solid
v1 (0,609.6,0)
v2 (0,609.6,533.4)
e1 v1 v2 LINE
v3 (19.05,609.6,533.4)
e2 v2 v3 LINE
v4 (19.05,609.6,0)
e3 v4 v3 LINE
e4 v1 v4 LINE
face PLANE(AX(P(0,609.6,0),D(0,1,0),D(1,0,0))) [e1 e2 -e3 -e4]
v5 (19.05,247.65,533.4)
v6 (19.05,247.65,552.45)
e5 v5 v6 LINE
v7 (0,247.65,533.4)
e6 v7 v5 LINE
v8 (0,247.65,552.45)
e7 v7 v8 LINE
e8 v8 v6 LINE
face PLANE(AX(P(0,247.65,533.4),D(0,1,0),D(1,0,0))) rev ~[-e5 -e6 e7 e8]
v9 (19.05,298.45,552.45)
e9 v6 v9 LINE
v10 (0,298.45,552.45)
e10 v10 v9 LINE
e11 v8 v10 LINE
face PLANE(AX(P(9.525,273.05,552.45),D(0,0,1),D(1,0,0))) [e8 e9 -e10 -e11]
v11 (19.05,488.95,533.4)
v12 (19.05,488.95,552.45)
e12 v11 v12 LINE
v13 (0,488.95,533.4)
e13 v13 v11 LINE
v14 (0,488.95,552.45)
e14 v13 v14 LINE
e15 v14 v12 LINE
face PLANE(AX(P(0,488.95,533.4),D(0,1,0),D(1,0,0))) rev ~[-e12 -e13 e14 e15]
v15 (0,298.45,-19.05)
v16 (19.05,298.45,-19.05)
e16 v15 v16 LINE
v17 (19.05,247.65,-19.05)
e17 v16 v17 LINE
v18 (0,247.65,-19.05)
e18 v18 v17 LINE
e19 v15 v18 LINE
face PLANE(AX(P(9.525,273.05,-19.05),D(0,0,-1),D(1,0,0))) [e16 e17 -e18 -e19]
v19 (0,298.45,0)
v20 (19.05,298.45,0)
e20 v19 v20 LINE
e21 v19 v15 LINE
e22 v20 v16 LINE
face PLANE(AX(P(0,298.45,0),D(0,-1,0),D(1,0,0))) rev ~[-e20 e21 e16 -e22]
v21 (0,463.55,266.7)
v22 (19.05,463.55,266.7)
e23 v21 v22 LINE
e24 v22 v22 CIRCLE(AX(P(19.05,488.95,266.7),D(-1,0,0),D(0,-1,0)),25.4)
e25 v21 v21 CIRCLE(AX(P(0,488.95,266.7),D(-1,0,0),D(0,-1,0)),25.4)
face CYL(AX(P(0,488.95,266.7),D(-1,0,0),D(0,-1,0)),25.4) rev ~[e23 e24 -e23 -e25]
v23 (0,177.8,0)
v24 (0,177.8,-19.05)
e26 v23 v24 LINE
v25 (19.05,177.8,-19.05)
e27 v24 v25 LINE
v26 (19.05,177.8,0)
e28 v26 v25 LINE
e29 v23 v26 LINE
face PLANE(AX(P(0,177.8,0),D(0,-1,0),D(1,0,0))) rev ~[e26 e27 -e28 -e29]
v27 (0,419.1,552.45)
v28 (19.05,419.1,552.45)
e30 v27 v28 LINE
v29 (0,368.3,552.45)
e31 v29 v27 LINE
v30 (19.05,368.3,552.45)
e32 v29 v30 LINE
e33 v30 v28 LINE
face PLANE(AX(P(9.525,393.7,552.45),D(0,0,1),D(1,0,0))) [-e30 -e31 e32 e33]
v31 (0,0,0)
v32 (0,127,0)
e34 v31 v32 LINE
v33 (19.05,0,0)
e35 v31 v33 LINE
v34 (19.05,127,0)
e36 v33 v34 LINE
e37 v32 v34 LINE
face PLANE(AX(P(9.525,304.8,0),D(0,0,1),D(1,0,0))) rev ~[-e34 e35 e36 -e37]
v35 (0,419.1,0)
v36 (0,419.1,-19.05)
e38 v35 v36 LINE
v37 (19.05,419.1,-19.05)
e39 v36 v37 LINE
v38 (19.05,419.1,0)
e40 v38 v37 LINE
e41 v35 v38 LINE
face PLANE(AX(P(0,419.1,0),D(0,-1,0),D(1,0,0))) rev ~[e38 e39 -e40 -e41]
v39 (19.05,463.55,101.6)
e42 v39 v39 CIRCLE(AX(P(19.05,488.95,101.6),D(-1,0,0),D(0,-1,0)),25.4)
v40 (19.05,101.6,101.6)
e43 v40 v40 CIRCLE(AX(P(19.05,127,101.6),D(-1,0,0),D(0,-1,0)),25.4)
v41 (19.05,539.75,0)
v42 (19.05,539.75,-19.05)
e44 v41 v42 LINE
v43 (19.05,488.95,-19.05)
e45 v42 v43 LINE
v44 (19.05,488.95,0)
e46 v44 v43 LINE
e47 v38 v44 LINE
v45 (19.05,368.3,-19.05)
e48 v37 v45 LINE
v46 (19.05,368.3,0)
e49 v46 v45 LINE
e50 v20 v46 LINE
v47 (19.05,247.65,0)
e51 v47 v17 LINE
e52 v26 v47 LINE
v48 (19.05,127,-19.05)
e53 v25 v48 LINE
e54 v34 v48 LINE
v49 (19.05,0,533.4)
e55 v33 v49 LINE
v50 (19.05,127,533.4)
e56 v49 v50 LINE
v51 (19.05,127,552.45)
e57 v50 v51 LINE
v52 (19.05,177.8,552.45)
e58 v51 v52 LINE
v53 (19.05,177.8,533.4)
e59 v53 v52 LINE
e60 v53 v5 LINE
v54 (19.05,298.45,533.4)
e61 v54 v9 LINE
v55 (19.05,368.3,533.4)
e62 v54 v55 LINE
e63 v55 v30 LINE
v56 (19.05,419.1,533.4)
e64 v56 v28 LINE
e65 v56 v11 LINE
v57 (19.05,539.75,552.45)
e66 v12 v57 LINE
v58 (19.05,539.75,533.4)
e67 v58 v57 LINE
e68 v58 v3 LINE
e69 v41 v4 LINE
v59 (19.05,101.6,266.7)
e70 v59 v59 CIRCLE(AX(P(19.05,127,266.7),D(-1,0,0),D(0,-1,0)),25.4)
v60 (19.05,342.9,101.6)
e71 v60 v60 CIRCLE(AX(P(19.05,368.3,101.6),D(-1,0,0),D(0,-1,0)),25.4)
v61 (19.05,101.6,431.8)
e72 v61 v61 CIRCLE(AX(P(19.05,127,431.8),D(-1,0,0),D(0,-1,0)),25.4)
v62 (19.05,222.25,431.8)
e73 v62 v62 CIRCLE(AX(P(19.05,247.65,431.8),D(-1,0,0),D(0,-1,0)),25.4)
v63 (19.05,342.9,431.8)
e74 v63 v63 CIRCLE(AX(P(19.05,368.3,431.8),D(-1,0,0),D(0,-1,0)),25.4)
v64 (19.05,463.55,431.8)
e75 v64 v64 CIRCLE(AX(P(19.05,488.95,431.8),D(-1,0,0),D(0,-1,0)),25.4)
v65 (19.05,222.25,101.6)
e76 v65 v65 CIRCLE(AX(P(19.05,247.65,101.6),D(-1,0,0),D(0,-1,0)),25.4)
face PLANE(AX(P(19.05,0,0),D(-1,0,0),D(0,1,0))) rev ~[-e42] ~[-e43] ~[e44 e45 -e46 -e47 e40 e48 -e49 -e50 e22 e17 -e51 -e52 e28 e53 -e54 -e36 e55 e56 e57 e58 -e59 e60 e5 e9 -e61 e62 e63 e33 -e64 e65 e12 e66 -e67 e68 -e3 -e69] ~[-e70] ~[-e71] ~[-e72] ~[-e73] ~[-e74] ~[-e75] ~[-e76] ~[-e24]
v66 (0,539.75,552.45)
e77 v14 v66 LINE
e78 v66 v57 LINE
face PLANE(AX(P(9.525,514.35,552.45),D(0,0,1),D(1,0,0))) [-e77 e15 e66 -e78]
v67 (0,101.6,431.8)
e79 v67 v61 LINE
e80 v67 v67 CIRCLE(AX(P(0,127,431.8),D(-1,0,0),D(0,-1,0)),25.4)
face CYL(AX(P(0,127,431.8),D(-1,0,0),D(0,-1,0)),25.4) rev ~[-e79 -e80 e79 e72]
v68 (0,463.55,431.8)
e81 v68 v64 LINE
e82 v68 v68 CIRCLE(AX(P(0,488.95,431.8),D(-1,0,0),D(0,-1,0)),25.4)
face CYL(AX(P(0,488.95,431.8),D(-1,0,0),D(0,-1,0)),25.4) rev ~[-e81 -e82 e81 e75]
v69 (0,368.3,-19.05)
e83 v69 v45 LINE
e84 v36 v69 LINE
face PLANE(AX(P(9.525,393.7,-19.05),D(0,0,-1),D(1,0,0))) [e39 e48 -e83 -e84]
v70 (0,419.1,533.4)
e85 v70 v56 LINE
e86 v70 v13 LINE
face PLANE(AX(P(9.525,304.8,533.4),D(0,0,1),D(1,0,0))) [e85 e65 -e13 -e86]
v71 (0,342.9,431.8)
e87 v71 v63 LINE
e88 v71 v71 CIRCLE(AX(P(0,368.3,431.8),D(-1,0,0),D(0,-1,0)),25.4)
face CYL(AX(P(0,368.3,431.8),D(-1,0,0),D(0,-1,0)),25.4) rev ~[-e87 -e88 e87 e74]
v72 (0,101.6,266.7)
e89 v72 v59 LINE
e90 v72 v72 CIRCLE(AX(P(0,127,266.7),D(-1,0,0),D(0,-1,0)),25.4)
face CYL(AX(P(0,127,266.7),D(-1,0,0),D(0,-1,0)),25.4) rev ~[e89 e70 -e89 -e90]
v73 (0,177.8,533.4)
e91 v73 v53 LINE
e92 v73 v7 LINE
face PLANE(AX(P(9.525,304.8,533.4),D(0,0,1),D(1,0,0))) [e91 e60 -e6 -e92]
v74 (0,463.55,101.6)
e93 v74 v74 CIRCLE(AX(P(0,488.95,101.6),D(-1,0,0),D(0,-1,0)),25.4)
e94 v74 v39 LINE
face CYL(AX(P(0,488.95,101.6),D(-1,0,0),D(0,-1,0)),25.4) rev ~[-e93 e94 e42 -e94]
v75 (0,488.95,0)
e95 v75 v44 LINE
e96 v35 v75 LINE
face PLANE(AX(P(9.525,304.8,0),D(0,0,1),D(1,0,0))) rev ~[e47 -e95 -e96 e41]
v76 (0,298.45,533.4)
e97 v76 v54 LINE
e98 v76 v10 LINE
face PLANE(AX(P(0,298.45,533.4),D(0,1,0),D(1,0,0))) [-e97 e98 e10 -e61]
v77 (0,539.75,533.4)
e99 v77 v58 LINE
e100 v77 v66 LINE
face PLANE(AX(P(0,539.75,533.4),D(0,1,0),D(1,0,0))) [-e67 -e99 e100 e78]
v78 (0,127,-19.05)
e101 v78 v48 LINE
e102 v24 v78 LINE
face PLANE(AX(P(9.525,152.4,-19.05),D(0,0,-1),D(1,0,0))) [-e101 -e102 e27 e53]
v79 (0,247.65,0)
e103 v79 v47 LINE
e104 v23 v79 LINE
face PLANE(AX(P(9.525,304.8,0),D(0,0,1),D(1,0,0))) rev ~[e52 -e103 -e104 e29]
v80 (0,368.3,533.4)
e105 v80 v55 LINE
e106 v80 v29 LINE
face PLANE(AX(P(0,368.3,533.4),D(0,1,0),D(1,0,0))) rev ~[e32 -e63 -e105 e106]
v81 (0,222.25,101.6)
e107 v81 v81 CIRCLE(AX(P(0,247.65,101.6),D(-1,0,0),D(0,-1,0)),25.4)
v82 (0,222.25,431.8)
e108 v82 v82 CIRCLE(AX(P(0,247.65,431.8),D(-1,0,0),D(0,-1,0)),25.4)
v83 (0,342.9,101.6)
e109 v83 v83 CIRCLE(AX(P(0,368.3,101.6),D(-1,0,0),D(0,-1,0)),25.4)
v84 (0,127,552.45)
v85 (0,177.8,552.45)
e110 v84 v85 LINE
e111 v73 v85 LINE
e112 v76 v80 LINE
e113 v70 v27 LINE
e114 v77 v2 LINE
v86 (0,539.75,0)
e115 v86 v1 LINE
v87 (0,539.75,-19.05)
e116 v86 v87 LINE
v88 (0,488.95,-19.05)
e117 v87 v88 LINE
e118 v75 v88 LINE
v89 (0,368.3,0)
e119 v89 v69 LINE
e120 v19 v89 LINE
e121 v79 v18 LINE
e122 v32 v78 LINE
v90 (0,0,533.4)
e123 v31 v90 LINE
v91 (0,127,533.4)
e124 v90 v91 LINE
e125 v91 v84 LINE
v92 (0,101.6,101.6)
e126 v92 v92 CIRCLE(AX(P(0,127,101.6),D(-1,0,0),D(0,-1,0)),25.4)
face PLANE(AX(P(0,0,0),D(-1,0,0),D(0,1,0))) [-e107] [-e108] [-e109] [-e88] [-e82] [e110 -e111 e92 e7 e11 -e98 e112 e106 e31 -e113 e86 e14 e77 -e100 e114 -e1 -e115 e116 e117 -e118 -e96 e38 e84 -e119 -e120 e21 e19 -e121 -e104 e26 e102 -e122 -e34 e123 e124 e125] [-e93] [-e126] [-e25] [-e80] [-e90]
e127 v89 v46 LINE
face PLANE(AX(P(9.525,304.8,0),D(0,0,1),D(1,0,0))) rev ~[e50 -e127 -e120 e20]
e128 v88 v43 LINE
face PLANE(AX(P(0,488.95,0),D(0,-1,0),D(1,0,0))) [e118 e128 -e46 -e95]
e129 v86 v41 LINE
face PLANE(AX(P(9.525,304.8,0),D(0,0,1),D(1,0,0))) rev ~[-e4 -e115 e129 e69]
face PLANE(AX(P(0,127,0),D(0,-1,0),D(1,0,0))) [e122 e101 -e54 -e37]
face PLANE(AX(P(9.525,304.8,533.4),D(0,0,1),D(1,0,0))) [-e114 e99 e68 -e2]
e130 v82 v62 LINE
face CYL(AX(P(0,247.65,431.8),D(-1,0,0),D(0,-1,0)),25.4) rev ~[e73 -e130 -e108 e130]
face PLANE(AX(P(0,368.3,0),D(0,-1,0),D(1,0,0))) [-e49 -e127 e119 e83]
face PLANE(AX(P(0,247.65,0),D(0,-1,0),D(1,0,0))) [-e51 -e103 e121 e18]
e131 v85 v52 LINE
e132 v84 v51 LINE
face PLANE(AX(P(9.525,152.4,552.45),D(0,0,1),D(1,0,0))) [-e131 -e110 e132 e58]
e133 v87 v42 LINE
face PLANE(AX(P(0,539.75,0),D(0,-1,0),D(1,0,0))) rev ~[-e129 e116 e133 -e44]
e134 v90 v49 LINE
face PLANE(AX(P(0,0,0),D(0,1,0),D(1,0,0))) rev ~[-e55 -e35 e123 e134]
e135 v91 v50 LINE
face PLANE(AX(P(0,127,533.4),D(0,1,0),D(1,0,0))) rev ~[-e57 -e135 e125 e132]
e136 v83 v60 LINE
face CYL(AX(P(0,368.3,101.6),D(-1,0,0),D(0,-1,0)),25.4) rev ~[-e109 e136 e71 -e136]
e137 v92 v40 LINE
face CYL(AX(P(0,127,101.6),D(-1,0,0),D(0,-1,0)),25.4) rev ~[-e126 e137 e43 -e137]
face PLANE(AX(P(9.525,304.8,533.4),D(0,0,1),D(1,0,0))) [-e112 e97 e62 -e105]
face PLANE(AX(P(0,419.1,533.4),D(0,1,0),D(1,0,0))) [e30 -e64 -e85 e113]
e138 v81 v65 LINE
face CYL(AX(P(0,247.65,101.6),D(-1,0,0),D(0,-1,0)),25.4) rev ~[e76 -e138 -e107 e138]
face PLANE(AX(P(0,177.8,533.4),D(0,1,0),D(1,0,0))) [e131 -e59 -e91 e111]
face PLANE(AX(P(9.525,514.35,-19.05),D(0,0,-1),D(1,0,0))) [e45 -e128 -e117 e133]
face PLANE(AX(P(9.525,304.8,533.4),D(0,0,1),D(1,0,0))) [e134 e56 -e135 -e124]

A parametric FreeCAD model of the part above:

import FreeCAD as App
import Part
import Sketcher
Q = App.Units.Quantity


def add_polygon(sketch, points):
    """Adds a closed chain of lines whose ends are joined by coincident constraints."""
    first, n = sketch.GeometryCount, len(points)
    for a, b in zip(points, points[1:] + points[:1]):
        sketch.addGeometry(Part.LineSegment(App.Vector(*a, 0), App.Vector(*b, 0)), False)
    for i in range(n):
        sketch.addConstraint(Sketcher.Constraint("Coincident", first + i, 2, first + (i + 1) % n, 1))

doc = App.newDocument("Part")
body = doc.addObject("PartDesign::Body", "Body")

sketch1 = doc.addObject("Sketcher::SketchObject", "Sketch")
body.addObject(sketch1)
sketch1.AttachmentSupport = (doc.XY_Plane, [""])
sketch1.MapMode = "FlatFace"
add_polygon(sketch1, [(0, 610), (0, 0), (19, 0), (19, 610)])
sketch1.addConstraint([
    Sketcher.Constraint("Vertical", 0),
    Sketcher.Constraint("Horizontal", 1),
    Sketcher.Constraint("Vertical", 2),
    Sketcher.Constraint("Horizontal", 3),
    Sketcher.Constraint("Coincident", 0, 2, -1, 1),
    Sketcher.Constraint("DistanceY", 0, 2, 0, 1, Q("24 in")),
    Sketcher.Constraint("DistanceX", 1, 1, 1, 2, Q("0.75 in")),
])
pad1 = doc.addObject("PartDesign::Pad", "Pad")
body.addObject(pad1)
pad1.Profile = sketch1
pad1.Length = Q("21 in")

sketch2 = doc.addObject("Sketcher::SketchObject", "Sketch001")
body.addObject(sketch2)
sketch2.AttachmentSupport = (doc.XY_Plane, [""])
sketch2.MapMode = "FlatFace"
add_polygon(sketch2, [(0, 127), (0, 178), (19, 178), (19, 127)])
add_polygon(sketch2, [(0, 248), (0, 298), (19, 298), (19, 248)])
add_polygon(sketch2, [(0, 368), (0, 419), (19, 419), (19, 368)])
add_polygon(sketch2, [(0, 489), (0, 540), (19, 540), (19, 489)])
sketch2.addConstraint([
    Sketcher.Constraint("Vertical", 0),
    Sketcher.Constraint("Horizontal", 1),
    Sketcher.Constraint("Vertical", 2),
    Sketcher.Constraint("Horizontal", 3),
    Sketcher.Constraint("Vertical", 4),
    Sketcher.Constraint("Horizontal", 5),
    Sketcher.Constraint("Vertical", 6),
    Sketcher.Constraint("Horizontal", 7),
    Sketcher.Constraint("Vertical", 8),
    Sketcher.Constraint("Horizontal", 9),
    Sketcher.Constraint("Vertical", 10),
    Sketcher.Constraint("Horizontal", 11),
    Sketcher.Constraint("Vertical", 12),
    Sketcher.Constraint("Horizontal", 13),
    Sketcher.Constraint("Vertical", 14),
    Sketcher.Constraint("Horizontal", 15),
    Sketcher.Constraint("PointOnObject", 0, 2, -2),
    Sketcher.Constraint("PointOnObject", 4, 2, -2),
    Sketcher.Constraint("PointOnObject", 8, 2, -2),
    Sketcher.Constraint("PointOnObject", 12, 2, -2),
    Sketcher.Constraint("Vertical", 2, 2, 5, 2),
    Sketcher.Constraint("Vertical", 6, 2, 9, 2),
    Sketcher.Constraint("Vertical", 10, 2, 13, 2),
    Sketcher.Constraint("Equal", 2, 4),
    Sketcher.Constraint("Equal", 6, 8),
    Sketcher.Constraint("Equal", 10, 12),
    Sketcher.Constraint("DistanceY", 0, 1, 0, 2, Q("2 in")),
    Sketcher.Constraint("DistanceY", -1, 1, 0, 2, Q("7 in")),
    Sketcher.Constraint("DistanceX", 1, 1, 1, 2, Q("0.75 in")),
    Sketcher.Constraint("DistanceY", -1, 1, 8, 2, Q("16.5 in")),
    Sketcher.Constraint("DistanceY", 4, 2, 12, 2, Q("9.5 in")),
    Sketcher.Constraint("DistanceY", -1, 1, 4, 2, Q("11.75 in")),
])
pad2 = doc.addObject("PartDesign::Pad", "Pad001")
body.addObject(pad2)
pad2.Profile = sketch2
pad2.Length = Q("0.75 in")
pad2.Reversed = True

sketch3 = doc.addObject("Sketcher::SketchObject", "Sketch002")
body.addObject(sketch3)
sketch3.AttachmentSupport = (doc.XY_Plane, [""])
sketch3.MapMode = "FlatFace"
sketch3.AttachmentOffset = App.Placement(App.Vector(0, 0, 21 * 25.4), App.Rotation())
add_polygon(sketch3, [(0, 540), (0, 489), (19, 489), (19, 540)])
add_polygon(sketch3, [(0, 419), (0, 368), (19, 368), (19, 419)])
add_polygon(sketch3, [(0, 298), (0, 248), (19, 248), (19, 298)])
add_polygon(sketch3, [(0, 178), (0, 127), (19, 127), (19, 178)])
sketch3.addConstraint([
    Sketcher.Constraint("Vertical", 0),
    Sketcher.Constraint("Horizontal", 1),
    Sketcher.Constraint("Vertical", 2),
    Sketcher.Constraint("Horizontal", 3),
    Sketcher.Constraint("Vertical", 4),
    Sketcher.Constraint("Horizontal", 5),
    Sketcher.Constraint("Vertical", 6),
    Sketcher.Constraint("Horizontal", 7),
    Sketcher.Constraint("Vertical", 8),
    Sketcher.Constraint("Horizontal", 9),
    Sketcher.Constraint("Vertical", 10),
    Sketcher.Constraint("Horizontal", 11),
    Sketcher.Constraint("Vertical", 12),
    Sketcher.Constraint("Horizontal", 13),
    Sketcher.Constraint("Vertical", 14),
    Sketcher.Constraint("Horizontal", 15),
    Sketcher.Constraint("PointOnObject", 0, 2, -2),
    Sketcher.Constraint("PointOnObject", 4, 2, -2),
    Sketcher.Constraint("PointOnObject", 8, 2, -2),
    Sketcher.Constraint("PointOnObject", 12, 2, -2),
    Sketcher.Constraint("Vertical", 2, 2, 5, 2),
    Sketcher.Constraint("Vertical", 6, 2, 9, 2),
    Sketcher.Constraint("Vertical", 10, 2, 13, 2),
    Sketcher.Constraint("Equal", 2, 4),
    Sketcher.Constraint("Equal", 6, 8),
    Sketcher.Constraint("Equal", 10, 12),
    Sketcher.Constraint("DistanceY", 0, 2, 0, 1, Q("2 in")),
    Sketcher.Constraint("DistanceY", -1, 1, 12, 2, Q("5 in")),
    Sketcher.Constraint("DistanceX", 1, 1, 1, 2, Q("0.75 in")),
    Sketcher.Constraint("DistanceY", -1, 1, 4, 2, Q("14.5 in")),
    Sketcher.Constraint("DistanceY", 8, 2, 0, 2, Q("9.5 in")),
    Sketcher.Constraint("DistanceY", -1, 1, 0, 2, Q("19.25 in")),
])
pad3 = doc.addObject("PartDesign::Pad", "Pad002")
body.addObject(pad3)
pad3.Profile = sketch3
pad3.Length = Q("0.75 in")

sketch4 = doc.addObject("Sketcher::SketchObject", "Sketch003")
body.addObject(sketch4)
sketch4.AttachmentSupport = (doc.YZ_Plane, [""])
sketch4.MapMode = "FlatFace"
sketch4.addGeometry([
    Part.Circle(App.Vector(489, 102, 0), App.Vector(0, 0, 1), 25),
    Part.Circle(App.Vector(368, 102, 0), App.Vector(0, 0, 1), 25),
    Part.Circle(App.Vector(248, 102, 0), App.Vector(0, 0, 1), 25),
    Part.Circle(App.Vector(127, 102, 0), App.Vector(0, 0, 1), 25),
    Part.Circle(App.Vector(489, 432, 0), App.Vector(0, 0, 1), 25),
    Part.Circle(App.Vector(368, 432, 0), App.Vector(0, 0, 1), 25),
    Part.Circle(App.Vector(248, 432, 0), App.Vector(0, 0, 1), 25),
    Part.Circle(App.Vector(127, 432, 0), App.Vector(0, 0, 1), 25),
    Part.Circle(App.Vector(127, 267, 0), App.Vector(0, 0, 1), 25),
    Part.Circle(App.Vector(489, 267, 0), App.Vector(0, 0, 1), 25),
], False)
sketch4.addConstraint([
    Sketcher.Constraint("Equal", 0, 1),
    Sketcher.Constraint("Equal", 1, 2),
    Sketcher.Constraint("Equal", 2, 3),
    Sketcher.Constraint("Equal", 3, 4),
    Sketcher.Constraint("Equal", 4, 5),
    Sketcher.Constraint("Equal", 5, 6),
    Sketcher.Constraint("Equal", 6, 7),
    Sketcher.Constraint("Equal", 7, 8),
    Sketcher.Constraint("Equal", 8, 9),
    Sketcher.Constraint("Horizontal", 0, 3, 1, 3),
    Sketcher.Constraint("Horizontal", 1, 3, 2, 3),
    Sketcher.Constraint("Horizontal", 2, 3, 3, 3),
    Sketcher.Constraint("Horizontal", 4, 3, 5, 3),
    Sketcher.Constraint("Horizontal", 5, 3, 6, 3),
    Sketcher.Constraint("Horizontal", 6, 3, 7, 3),
    Sketcher.Constraint("Horizontal", 8, 3, 9, 3),
    Sketcher.Constraint("Vertical", 0, 3, 4, 3),
    Sketcher.Constraint("Vertical", 1, 3, 5, 3),
    Sketcher.Constraint("Vertical", 2, 3, 6, 3),
    Sketcher.Constraint("Vertical", 3, 3, 7, 3),
    Sketcher.Constraint("Vertical", 7, 3, 8, 3),
    Sketcher.Constraint("Vertical", 4, 3, 9, 3),
    Sketcher.Constraint("Diameter", 0, Q("2 in")),
    Sketcher.Constraint("DistanceY", -1, 1, 0, 3, Q("4 in")),
    Sketcher.Constraint("DistanceX", -1, 1, 3, 3, Q("5 in")),
    Sketcher.Constraint("DistanceY", -1, 1, 4, 3, Q("17 in")),
    Sketcher.Constraint("DistanceX", -1, 1, 1, 3, Q("14.5 in")),
    Sketcher.Constraint("DistanceY", -1, 1, 8, 3, Q("10.5 in")),
    Sketcher.Constraint("DistanceX", 2, 3, 0, 3, Q("9.5 in")),
    Sketcher.Constraint("DistanceX", -1, 1, 0, 3, Q("19.25 in")),
])
pocket1 = doc.addObject("PartDesign::Pocket", "Pocket")
body.addObject(pocket1)
pocket1.Profile = sketch4
pocket1.Length = Q("0.75 in")
pocket1.Reversed = True

doc.recompute()
